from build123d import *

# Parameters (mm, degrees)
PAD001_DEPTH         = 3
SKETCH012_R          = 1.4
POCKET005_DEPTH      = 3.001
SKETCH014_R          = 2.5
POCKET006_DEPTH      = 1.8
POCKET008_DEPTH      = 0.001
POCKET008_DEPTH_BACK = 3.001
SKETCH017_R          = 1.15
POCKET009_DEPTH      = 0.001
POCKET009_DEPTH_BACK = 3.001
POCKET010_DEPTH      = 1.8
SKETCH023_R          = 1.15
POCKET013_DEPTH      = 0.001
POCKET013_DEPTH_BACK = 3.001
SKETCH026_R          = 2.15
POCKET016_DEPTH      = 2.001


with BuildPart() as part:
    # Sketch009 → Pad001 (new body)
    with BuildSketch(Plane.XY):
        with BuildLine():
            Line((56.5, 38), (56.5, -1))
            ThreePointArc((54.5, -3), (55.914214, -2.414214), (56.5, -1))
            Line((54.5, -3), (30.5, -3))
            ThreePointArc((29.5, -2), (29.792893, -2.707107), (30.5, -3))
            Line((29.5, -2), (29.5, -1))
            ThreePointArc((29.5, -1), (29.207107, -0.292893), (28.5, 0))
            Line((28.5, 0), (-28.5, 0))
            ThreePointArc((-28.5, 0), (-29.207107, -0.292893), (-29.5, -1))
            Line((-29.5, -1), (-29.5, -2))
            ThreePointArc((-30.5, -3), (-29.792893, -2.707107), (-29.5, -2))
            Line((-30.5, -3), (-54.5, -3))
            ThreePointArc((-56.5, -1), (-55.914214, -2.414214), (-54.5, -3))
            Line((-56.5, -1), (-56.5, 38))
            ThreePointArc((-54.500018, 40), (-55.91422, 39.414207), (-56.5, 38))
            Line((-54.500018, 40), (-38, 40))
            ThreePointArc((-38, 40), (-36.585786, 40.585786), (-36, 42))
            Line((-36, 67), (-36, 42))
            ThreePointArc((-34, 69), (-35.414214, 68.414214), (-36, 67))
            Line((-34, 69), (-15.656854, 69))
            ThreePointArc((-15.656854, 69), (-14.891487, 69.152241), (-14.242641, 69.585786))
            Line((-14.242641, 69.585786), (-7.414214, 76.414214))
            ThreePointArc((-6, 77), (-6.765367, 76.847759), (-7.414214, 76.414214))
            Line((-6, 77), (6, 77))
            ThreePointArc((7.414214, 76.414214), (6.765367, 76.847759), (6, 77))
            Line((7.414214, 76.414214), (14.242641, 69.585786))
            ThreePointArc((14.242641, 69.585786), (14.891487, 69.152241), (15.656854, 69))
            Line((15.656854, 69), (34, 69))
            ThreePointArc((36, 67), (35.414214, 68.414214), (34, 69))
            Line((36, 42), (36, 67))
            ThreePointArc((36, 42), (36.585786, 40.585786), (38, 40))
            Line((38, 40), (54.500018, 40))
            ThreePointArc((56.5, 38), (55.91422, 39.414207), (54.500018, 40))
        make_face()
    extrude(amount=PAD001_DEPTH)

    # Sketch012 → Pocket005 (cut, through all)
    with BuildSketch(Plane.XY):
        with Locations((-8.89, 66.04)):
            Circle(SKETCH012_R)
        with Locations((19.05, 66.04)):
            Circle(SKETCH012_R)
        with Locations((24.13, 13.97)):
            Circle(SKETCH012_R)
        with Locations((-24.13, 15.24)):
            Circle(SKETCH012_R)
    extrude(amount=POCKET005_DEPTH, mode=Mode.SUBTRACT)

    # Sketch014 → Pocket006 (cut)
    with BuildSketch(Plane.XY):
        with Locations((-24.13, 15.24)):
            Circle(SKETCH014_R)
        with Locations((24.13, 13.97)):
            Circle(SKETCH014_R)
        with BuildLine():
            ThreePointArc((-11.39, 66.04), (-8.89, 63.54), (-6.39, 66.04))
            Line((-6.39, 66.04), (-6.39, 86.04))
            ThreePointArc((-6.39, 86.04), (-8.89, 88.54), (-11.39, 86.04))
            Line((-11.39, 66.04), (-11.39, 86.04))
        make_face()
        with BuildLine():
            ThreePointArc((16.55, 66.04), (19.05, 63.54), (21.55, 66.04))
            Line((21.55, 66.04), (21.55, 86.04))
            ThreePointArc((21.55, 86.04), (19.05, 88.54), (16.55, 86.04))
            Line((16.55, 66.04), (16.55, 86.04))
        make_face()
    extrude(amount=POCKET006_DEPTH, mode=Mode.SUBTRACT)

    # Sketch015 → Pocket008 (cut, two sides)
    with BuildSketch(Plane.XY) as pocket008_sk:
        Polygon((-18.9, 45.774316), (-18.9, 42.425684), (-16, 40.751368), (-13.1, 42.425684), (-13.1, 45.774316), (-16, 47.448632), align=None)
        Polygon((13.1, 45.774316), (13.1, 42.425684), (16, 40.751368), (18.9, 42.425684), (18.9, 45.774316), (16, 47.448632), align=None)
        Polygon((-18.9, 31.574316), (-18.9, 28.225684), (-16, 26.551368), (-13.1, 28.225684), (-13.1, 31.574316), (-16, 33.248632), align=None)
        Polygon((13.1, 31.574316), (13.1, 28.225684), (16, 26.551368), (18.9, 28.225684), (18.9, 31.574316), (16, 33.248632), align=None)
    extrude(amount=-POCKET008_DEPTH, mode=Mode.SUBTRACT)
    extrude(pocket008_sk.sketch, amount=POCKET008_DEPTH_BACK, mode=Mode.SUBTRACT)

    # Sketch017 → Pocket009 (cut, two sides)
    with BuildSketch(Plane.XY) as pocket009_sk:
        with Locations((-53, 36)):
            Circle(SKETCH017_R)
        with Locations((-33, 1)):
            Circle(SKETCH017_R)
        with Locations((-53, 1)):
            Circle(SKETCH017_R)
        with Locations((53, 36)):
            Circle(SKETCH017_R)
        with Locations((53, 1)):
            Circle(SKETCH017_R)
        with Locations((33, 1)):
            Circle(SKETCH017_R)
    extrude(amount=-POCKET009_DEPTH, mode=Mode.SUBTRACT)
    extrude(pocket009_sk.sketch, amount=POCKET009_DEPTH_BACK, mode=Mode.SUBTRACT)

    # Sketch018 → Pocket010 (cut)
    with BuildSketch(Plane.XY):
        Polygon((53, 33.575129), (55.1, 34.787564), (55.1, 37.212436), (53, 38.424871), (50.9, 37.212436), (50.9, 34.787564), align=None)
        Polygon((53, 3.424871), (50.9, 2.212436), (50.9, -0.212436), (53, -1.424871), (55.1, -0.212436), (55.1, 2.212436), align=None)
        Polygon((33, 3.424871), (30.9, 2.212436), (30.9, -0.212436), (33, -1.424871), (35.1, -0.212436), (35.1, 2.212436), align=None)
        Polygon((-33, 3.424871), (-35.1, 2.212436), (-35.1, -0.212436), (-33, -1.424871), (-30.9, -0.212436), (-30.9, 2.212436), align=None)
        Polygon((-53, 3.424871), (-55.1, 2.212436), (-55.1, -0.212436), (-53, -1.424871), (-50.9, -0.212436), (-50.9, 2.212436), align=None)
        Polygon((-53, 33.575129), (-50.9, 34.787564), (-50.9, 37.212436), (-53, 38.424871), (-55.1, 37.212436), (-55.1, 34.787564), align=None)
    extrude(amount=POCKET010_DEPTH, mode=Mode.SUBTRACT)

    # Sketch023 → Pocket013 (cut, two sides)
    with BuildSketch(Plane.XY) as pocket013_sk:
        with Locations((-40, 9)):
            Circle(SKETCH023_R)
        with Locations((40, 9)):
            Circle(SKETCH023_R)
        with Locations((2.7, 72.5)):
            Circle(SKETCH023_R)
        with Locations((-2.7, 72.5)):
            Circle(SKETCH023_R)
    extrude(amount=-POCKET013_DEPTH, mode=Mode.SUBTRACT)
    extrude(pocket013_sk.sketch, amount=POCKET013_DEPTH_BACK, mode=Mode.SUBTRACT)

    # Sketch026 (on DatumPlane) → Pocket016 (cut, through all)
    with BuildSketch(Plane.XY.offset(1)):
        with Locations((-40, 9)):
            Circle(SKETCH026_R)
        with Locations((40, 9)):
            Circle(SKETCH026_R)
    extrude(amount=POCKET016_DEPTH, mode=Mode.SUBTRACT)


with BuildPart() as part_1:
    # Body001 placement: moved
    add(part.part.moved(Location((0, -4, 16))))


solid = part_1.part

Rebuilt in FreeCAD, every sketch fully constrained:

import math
import FreeCAD as App
import Part
import Sketcher

V = App.Vector
Q = App.Units.Quantity

doc = App.newDocument("Part")
body = doc.addObject("PartDesign::Body", "Body")

# Sketch on XY plane
sketch1 = body.newObject("Sketcher::SketchObject", "Sketch")
sketch1.AttachmentSupport = (doc.getObject("XY_Plane"), [""])
sketch1.MapMode = "FlatFace"
sketch1.addGeometry(Part.LineSegment(V(56.5, -1, 0), V(56.5, 38, 0)), False)
sketch1.addGeometry(Part.ArcOfCircle(Part.Circle(V(54.5, 38, 0), V(0, 0, 1), 2), math.radians(0), math.radians(90)), False)
sketch1.addGeometry(Part.LineSegment(V(54.5, 40, 0), V(38, 40, 0)), False)
sketch1.addGeometry(Part.ArcOfCircle(Part.Circle(V(38, 42, 0), V(0, 0, 1), 2), math.radians(180), math.radians(270)), False)
sketch1.addGeometry(Part.LineSegment(V(36, 42, 0), V(36, 67, 0)), False)
sketch1.addGeometry(Part.ArcOfCircle(Part.Circle(V(34, 67, 0), V(0, 0, 1), 2), math.radians(0), math.radians(90)), False)
sketch1.addGeometry(Part.LineSegment(V(34, 69, 0), V(15.7, 69, 0)), False)
sketch1.addGeometry(Part.ArcOfCircle(Part.Circle(V(15.7, 71, 0), V(0, 0, 1), 2), math.radians(-135), math.radians(-90)), False)
sketch1.addGeometry(Part.LineSegment(V(14.2, 69.6, 0), V(7.4, 76.4, 0)), False)
sketch1.addGeometry(Part.ArcOfCircle(Part.Circle(V(6, 75, 0), V(0, 0, 1), 2), math.radians(45), math.radians(90)), False)
sketch1.addGeometry(Part.LineSegment(V(6, 77, 0), V(-6, 77, 0)), False)
sketch1.addGeometry(Part.ArcOfCircle(Part.Circle(V(-6, 75, 0), V(0, 0, 1), 2), math.radians(90), math.radians(135)), False)
sketch1.addGeometry(Part.LineSegment(V(-7.4, 76.4, 0), V(-14.2, 69.6, 0)), False)
sketch1.addGeometry(Part.ArcOfCircle(Part.Circle(V(-15.7, 71, 0), V(0, 0, 1), 2), math.radians(-90), math.radians(-45)), False)
sketch1.addGeometry(Part.LineSegment(V(-15.7, 69, 0), V(-34, 69, 0)), False)
sketch1.addGeometry(Part.ArcOfCircle(Part.Circle(V(-34, 67, 0), V(0, 0, 1), 2), math.radians(90), math.radians(180)), False)
sketch1.addGeometry(Part.LineSegment(V(-36, 67, 0), V(-36, 42, 0)), False)
sketch1.addGeometry(Part.ArcOfCircle(Part.Circle(V(-38, 42, 0), V(0, 0, 1), 2), math.radians(-90), math.radians(0)), False)
sketch1.addGeometry(Part.LineSegment(V(-38, 40, 0), V(-54.5, 40, 0)), False)
sketch1.addGeometry(Part.ArcOfCircle(Part.Circle(V(-54.5, 38, 0), V(0, 0, 1), 2), math.radians(90), math.radians(180)), False)
sketch1.addGeometry(Part.LineSegment(V(-56.5, 38, 0), V(-56.5, -1, 0)), False)
sketch1.addGeometry(Part.ArcOfCircle(Part.Circle(V(-54.5, -1, 0), V(0, 0, 1), 2), math.radians(180), math.radians(270)), False)
sketch1.addGeometry(Part.LineSegment(V(-54.5, -3, 0), V(-30.5, -3, 0)), False)
sketch1.addGeometry(Part.ArcOfCircle(Part.Circle(V(-30.5, -2, 0), V(0, 0, 1), 1), math.radians(-90), math.radians(0)), False)
sketch1.addGeometry(Part.LineSegment(V(-29.5, -2, 0), V(-29.5, -1, 0)), False)
sketch1.addGeometry(Part.ArcOfCircle(Part.Circle(V(-28.5, -1, 0), V(0, 0, 1), 1), math.radians(90), math.radians(180)), False)
sketch1.addGeometry(Part.LineSegment(V(-28.5, 0, 0), V(28.5, 0, 0)), False)
sketch1.addGeometry(Part.ArcOfCircle(Part.Circle(V(28.5, -1, 0), V(0, 0, 1), 1), math.radians(0), math.radians(90)), False)
sketch1.addGeometry(Part.LineSegment(V(29.5, -1, 0), V(29.5, -2, 0)), False)
sketch1.addGeometry(Part.ArcOfCircle(Part.Circle(V(30.5, -2, 0), V(0, 0, 1), 1), math.radians(180), math.radians(270)), False)
sketch1.addGeometry(Part.LineSegment(V(30.5, -3, 0), V(54.5, -3, 0)), False)
sketch1.addGeometry(Part.ArcOfCircle(Part.Circle(V(54.5, -1, 0), V(0, 0, 1), 2), math.radians(-90), math.radians(0)), False)
sketch1.addConstraint(Sketcher.Constraint("Tangent", 0, 2, 1, 1))
sketch1.addConstraint(Sketcher.Constraint("Coincident", 1, 2, 2, 1))
sketch1.addConstraint(Sketcher.Constraint("Tangent", 2, 2, 3, 2))
sketch1.addConstraint(Sketcher.Constraint("Tangent", 3, 1, 4, 1))
sketch1.addConstraint(Sketcher.Constraint("Tangent", 4, 2, 5, 1))
sketch1.addConstraint(Sketcher.Constraint("Tangent", 5, 2, 6, 1))
sketch1.addConstraint(Sketcher.Constraint("Tangent", 6, 2, 7, 2))
sketch1.addConstraint(Sketcher.Constraint("Tangent", 7, 1, 8, 1))
sketch1.addConstraint(Sketcher.Constraint("Tangent", 8, 2, 9, 1))
sketch1.addConstraint(Sketcher.Constraint("Tangent", 9, 2, 10, 1))
sketch1.addConstraint(Sketcher.Constraint("Tangent", 10, 2, 11, 1))
sketch1.addConstraint(Sketcher.Constraint("Tangent", 11, 2, 12, 1))
sketch1.addConstraint(Sketcher.Constraint("Tangent", 12, 2, 13, 2))
sketch1.addConstraint(Sketcher.Constraint("Tangent", 13, 1, 14, 1))
sketch1.addConstraint(Sketcher.Constraint("Tangent", 14, 2, 15, 1))
sketch1.addConstraint(Sketcher.Constraint("Tangent", 15, 2, 16, 1))
sketch1.addConstraint(Sketcher.Constraint("Tangent", 16, 2, 17, 2))
sketch1.addConstraint(Sketcher.Constraint("Tangent", 17, 1, 18, 1))
sketch1.addConstraint(Sketcher.Constraint("Coincident", 18, 2, 19, 1))
sketch1.addConstraint(Sketcher.Constraint("Tangent", 19, 2, 20, 1))
sketch1.addConstraint(Sketcher.Constraint("Tangent", 20, 2, 21, 1))
sketch1.addConstraint(Sketcher.Constraint("Tangent", 21, 2, 22, 1))
sketch1.addConstraint(Sketcher.Constraint("Tangent", 22, 2, 23, 1))
sketch1.addConstraint(Sketcher.Constraint("Tangent", 23, 2, 24, 1))
sketch1.addConstraint(Sketcher.Constraint("Tangent", 24, 2, 25, 2))
sketch1.addConstraint(Sketcher.Constraint("Tangent", 25, 1, 26, 1))
sketch1.addConstraint(Sketcher.Constraint("Tangent", 26, 2, 27, 2))
sketch1.addConstraint(Sketcher.Constraint("Tangent", 27, 1, 28, 1))
sketch1.addConstraint(Sketcher.Constraint("Tangent", 28, 2, 29, 1))
sketch1.addConstraint(Sketcher.Constraint("Tangent", 29, 2, 30, 1))
sketch1.addConstraint(Sketcher.Constraint("Tangent", 30, 2, 31, 1))
sketch1.addConstraint(Sketcher.Constraint("Tangent", 31, 2, 0, 1))
sketch1.addConstraint(Sketcher.Constraint("Vertical", 0))
sketch1.addConstraint(Sketcher.Constraint("Horizontal", 2))
sketch1.addConstraint(Sketcher.Constraint("Vertical", 4))
sketch1.addConstraint(Sketcher.Constraint("Horizontal", 6))
sketch1.addConstraint(Sketcher.Constraint("Horizontal", 10))
sketch1.addConstraint(Sketcher.Constraint("Horizontal", 14))
sketch1.addConstraint(Sketcher.Constraint("Vertical", 16))
sketch1.addConstraint(Sketcher.Constraint("Horizontal", 18))
sketch1.addConstraint(Sketcher.Constraint("Vertical", 20))
sketch1.addConstraint(Sketcher.Constraint("Horizontal", 22))
sketch1.addConstraint(Sketcher.Constraint("Vertical", 24))
sketch1.addConstraint(Sketcher.Constraint("Horizontal", 26))
sketch1.addConstraint(Sketcher.Constraint("Vertical", 28))
sketch1.addConstraint(Sketcher.Constraint("Horizontal", 30))
sketch1.addConstraint(Sketcher.Constraint("Equal", 1, 3))
sketch1.addConstraint(Sketcher.Constraint("Equal", 3, 5))
sketch1.addConstraint(Sketcher.Constraint("Equal", 5, 7))
sketch1.addConstraint(Sketcher.Constraint("Equal", 9, 11))
sketch1.addConstraint(Sketcher.Constraint("Equal", 7, 13))
sketch1.addConstraint(Sketcher.Constraint("Equal", 13, 15))
sketch1.addConstraint(Sketcher.Constraint("Equal", 15, 17))
sketch1.addConstraint(Sketcher.Constraint("Equal", 17, 19))
sketch1.addConstraint(Sketcher.Constraint("Equal", 19, 21))
sketch1.addConstraint(Sketcher.Constraint("Equal", 23, 25))
sketch1.addConstraint(Sketcher.Constraint("Equal", 25, 27))
sketch1.addConstraint(Sketcher.Constraint("Equal", 27, 29))
sketch1.addConstraint(Sketcher.Constraint("Equal", 21, 31))
sketch1.addConstraint(Sketcher.Constraint("Symmetric", 25, 1, 26, 2, -1, 1))
sketch1.addConstraint(Sketcher.Constraint("Symmetric", 7, 3, 13, 3, -2))
sketch1.addConstraint(Sketcher.Constraint("Symmetric", 3, 3, 17, 3, -2))
sketch1.addConstraint(Sketcher.Constraint("Symmetric", 21, 3, 31, 3, -2))
sketch1.addConstraint(Sketcher.Constraint("Perpendicular", 8, 12))
sketch1.addConstraint(Sketcher.Constraint("Horizontal", 8, 2, 11, 2))
sketch1.addConstraint(Sketcher.Constraint("Horizontal", 20, 2, 24, 2))
sketch1.addConstraint(Sketcher.Constraint("Equal", 2, 18))
sketch1.addConstraint(Sketcher.Constraint("Radius", 1, 2.0))
sketch1.addConstraint(Sketcher.Constraint("Radius", 23, 0.999999))
sketch1.addConstraint(Sketcher.Constraint("DistanceX", 10, 2, 10, 1, 12.0))
sketch1.addConstraint(Sketcher.Constraint("DistanceX", 22, 1, 22, 2, 24.0))
sketch1.addConstraint(Sketcher.Constraint("DistanceX", 26, 1, 26, 2, 57.0))
sketch1.addConstraint(Sketcher.Constraint("DistanceY", 0, 1, 0, 2, 39.0))
sketch1.addConstraint(Sketcher.Constraint("DistanceY", 4, 1, 4, 2, 25.0))
sketch1.addConstraint(Sketcher.Constraint("DistanceX", -1, 1, 3, 3, 37.999999))
sketch1.addConstraint(Sketcher.Constraint("DistanceY", -1, 1, 9, 2, 77.0))
sketch1.addConstraint(Sketcher.Constraint("Radius", 9, 2.000004))
sketch1.addConstraint(Sketcher.Constraint("DistanceX", 2, 2, 2, 1, 16.500018))
pad1 = body.newObject("PartDesign::Pad", "Pad")
pad1.Profile = sketch1
pad1.Length = 3

# Sketch on XY plane
sketch2 = body.newObject("Sketcher::SketchObject", "Sketch001")
sketch2.AttachmentSupport = (doc.getObject("XY_Plane"), [""])
sketch2.MapMode = "FlatFace"
sketch2.addGeometry(Part.Circle(V(-8.9, 66, 0), V(0, 0, 1), 1.4), False)
sketch2.addGeometry(Part.Circle(V(19.1, 66, 0), V(0, 0, 1), 1.4), False)
sketch2.addGeometry(Part.Circle(V(24.1, 14, 0), V(0, 0, 1), 1.4), False)
sketch2.addGeometry(Part.Circle(V(-24.1, 15.2, 0), V(0, 0, 1), 1.4), False)
sketch2.addConstraint(Sketcher.Constraint("Equal", 0, 1))
sketch2.addConstraint(Sketcher.Constraint("Equal", 1, 2))
sketch2.addConstraint(Sketcher.Constraint("Equal", 2, 3))
sketch2.addConstraint(Sketcher.Constraint("Horizontal", 0, 3, 1, 3))
sketch2.addConstraint(Sketcher.Constraint("Diameter", 0, 2.8))
sketch2.addConstraint(Sketcher.Constraint("DistanceY", 3, 3, 0, 3, 50.8))
sketch2.addConstraint(Sketcher.Constraint("DistanceX", 0, 3, -1, 1, 8.89))
sketch2.addConstraint(Sketcher.Constraint("DistanceY", -1, 1, 0, 3, 66.04))
sketch2.addConstraint(Sketcher.Constraint("DistanceX", -1, 1, 1, 3, 19.05))
sketch2.addConstraint(Sketcher.Constraint("DistanceX", -1, 1, 2, 3, 24.13))
sketch2.addConstraint(Sketcher.Constraint("DistanceY", -1, 1, 2, 3, 13.97))
sketch2.addConstraint(Sketcher.Constraint("DistanceX", 3, 3, -1, 1, 24.13))
pocket1 = body.newObject("PartDesign::Pocket", "Pocket")
pocket1.Profile = sketch2
pocket1.Type = "ThroughAll"
pocket1.Reversed = True

# Sketch on XY plane
sketch3 = body.newObject("Sketcher::SketchObject", "Sketch002")
sketch3.AttachmentSupport = (doc.getObject("XY_Plane"), [""])
sketch3.MapMode = "FlatFace"
sketch3.addGeometry(Part.Circle(V(-24.1, 15.2, 0), V(0, 0, 1), 2.5), False)
sketch3.addGeometry(Part.Circle(V(24.1, 14, 0), V(0, 0, 1), 2.5), False)
sketch3.addGeometry(Part.ArcOfCircle(Part.Circle(V(-8.9, 66, 0), V(0, 0, 1), 2.5), math.radians(180), math.radians(360)), False)
sketch3.addGeometry(Part.LineSegment(V(-6.4, 66, 0), V(-6.4, 86, 0)), False)
sketch3.addGeometry(Part.ArcOfCircle(Part.Circle(V(-8.9, 86, 0), V(0, 0, 1), 2.5), math.radians(0), math.radians(180)), False)
sketch3.addGeometry(Part.LineSegment(V(-11.4, 86, 0), V(-11.4, 66, 0)), False)
sketch3.addGeometry(Part.ArcOfCircle(Part.Circle(V(19.1, 66, 0), V(0, 0, 1), 2.5), math.radians(180), math.radians(360)), False)
sketch3.addGeometry(Part.LineSegment(V(21.6, 66, 0), V(21.6, 86, 0)), False)
sketch3.addGeometry(Part.ArcOfCircle(Part.Circle(V(19.1, 86, 0), V(0, 0, 1), 2.5), math.radians(0), math.radians(180)), False)
sketch3.addGeometry(Part.LineSegment(V(16.6, 86, 0), V(16.6, 66, 0)), False)
sketch3.addConstraint(Sketcher.Constraint("Tangent", 2, 2, 3, 1))
sketch3.addConstraint(Sketcher.Constraint("Tangent", 3, 2, 4, 1))
sketch3.addConstraint(Sketcher.Constraint("Tangent", 4, 2, 5, 1))
sketch3.addConstraint(Sketcher.Constraint("Tangent", 5, 2, 2, 1))
sketch3.addConstraint(Sketcher.Constraint("Tangent", 6, 2, 7, 1))
sketch3.addConstraint(Sketcher.Constraint("Tangent", 7, 2, 8, 1))
sketch3.addConstraint(Sketcher.Constraint("Tangent", 8, 2, 9, 1))
sketch3.addConstraint(Sketcher.Constraint("Tangent", 9, 2, 6, 1))
sketch3.addConstraint(Sketcher.Constraint("Vertical", 3))
sketch3.addConstraint(Sketcher.Constraint("Vertical", 5))
sketch3.addConstraint(Sketcher.Constraint("Vertical", 7))
sketch3.addConstraint(Sketcher.Constraint("Vertical", 9))
sketch3.addConstraint(Sketcher.Constraint("Equal", 0, 1))
sketch3.addConstraint(Sketcher.Constraint("Equal", 1, 2))
sketch3.addConstraint(Sketcher.Constraint("Equal", 4, 6))
sketch3.addConstraint(Sketcher.Constraint("Horizontal", 2, 3, 6, 3))
sketch3.addConstraint(Sketcher.Constraint("Horizontal", 4, 3, 8, 3))
sketch3.addConstraint(Sketcher.Constraint("Diameter", 0, 5.0))
sketch3.addConstraint(Sketcher.Constraint("DistanceY", 3, 1, 3, 2, 20.0))
sketch3.addConstraint(Sketcher.Constraint("DistanceY", 0, 3, 2, 3, 50.8))
sketch3.addConstraint(Sketcher.Constraint("DistanceX", 0, 3, -1, 1, 24.13))
sketch3.addConstraint(Sketcher.Constraint("DistanceY", -1, 1, 0, 3, 15.24))
sketch3.addConstraint(Sketcher.Constraint("DistanceX", -1, 1, 1, 3, 24.13))
sketch3.addConstraint(Sketcher.Constraint("DistanceY", -1, 1, 1, 3, 13.97))
sketch3.addConstraint(Sketcher.Constraint("DistanceX", 2, 3, -1, 1, 8.89))
sketch3.addConstraint(Sketcher.Constraint("DistanceX", -1, 1, 6, 3, 19.05))
pocket2 = body.newObject("PartDesign::Pocket", "Pocket001")
pocket2.Profile = sketch3
pocket2.Length = 1.8
pocket2.Reversed = True

# Sketch on XY plane
sketch4 = body.newObject("Sketcher::SketchObject", "Sketch003")
sketch4.AttachmentSupport = (doc.getObject("XY_Plane"), [""])
sketch4.MapMode = "FlatFace"
sketch4.addGeometry(Part.LineSegment(V(-18.9, 45.8, 0), V(-18.9, 42.4, 0)), False)
sketch4.addGeometry(Part.LineSegment(V(-18.9, 42.4, 0), V(-16, 40.8, 0)), False)
sketch4.addGeometry(Part.LineSegment(V(-16, 40.8, 0), V(-13.1, 42.4, 0)), False)
sketch4.addGeometry(Part.LineSegment(V(-13.1, 42.4, 0), V(-13.1, 45.8, 0)), False)
sketch4.addGeometry(Part.LineSegment(V(-13.1, 45.8, 0), V(-16, 47.4, 0)), False)
sketch4.addGeometry(Part.LineSegment(V(-16, 47.4, 0), V(-18.9, 45.8, 0)), False)
sketch4.addGeometry(Part.LineSegment(V(13.1, 45.8, 0), V(13.1, 42.4, 0)), False)
sketch4.addGeometry(Part.LineSegment(V(13.1, 42.4, 0), V(16, 40.8, 0)), False)
sketch4.addGeometry(Part.LineSegment(V(16, 40.8, 0), V(18.9, 42.4, 0)), False)
sketch4.addGeometry(Part.LineSegment(V(18.9, 42.4, 0), V(18.9, 45.8, 0)), False)
sketch4.addGeometry(Part.LineSegment(V(18.9, 45.8, 0), V(16, 47.4, 0)), False)
sketch4.addGeometry(Part.LineSegment(V(16, 47.4, 0), V(13.1, 45.8, 0)), False)
sketch4.addGeometry(Part.LineSegment(V(-18.9, 31.6, 0), V(-18.9, 28.2, 0)), False)
sketch4.addGeometry(Part.LineSegment(V(-18.9, 28.2, 0), V(-16, 26.6, 0)), False)
sketch4.addGeometry(Part.LineSegment(V(-16, 26.6, 0), V(-13.1, 28.2, 0)), False)
sketch4.addGeometry(Part.LineSegment(V(-13.1, 28.2, 0), V(-13.1, 31.6, 0)), False)
sketch4.addGeometry(Part.LineSegment(V(-13.1, 31.6, 0), V(-16, 33.2, 0)), False)
sketch4.addGeometry(Part.LineSegment(V(-16, 33.2, 0), V(-18.9, 31.6, 0)), False)
sketch4.addGeometry(Part.LineSegment(V(13.1, 31.6, 0), V(13.1, 28.2, 0)), False)
sketch4.addGeometry(Part.LineSegment(V(13.1, 28.2, 0), V(16, 26.6, 0)), False)
sketch4.addGeometry(Part.LineSegment(V(16, 26.6, 0), V(18.9, 28.2, 0)), False)
sketch4.addGeometry(Part.LineSegment(V(18.9, 28.2, 0), V(18.9, 31.6, 0)), False)
sketch4.addGeometry(Part.LineSegment(V(18.9, 31.6, 0), V(16, 33.2, 0)), False)
sketch4.addGeometry(Part.LineSegment(V(16, 33.2, 0), V(13.1, 31.6, 0)), False)
sketch4.addConstraint(Sketcher.Constraint("Coincident", 0, 2, 1, 1))
sketch4.addConstraint(Sketcher.Constraint("Coincident", 1, 2, 2, 1))
sketch4.addConstraint(Sketcher.Constraint("Coincident", 2, 2, 3, 1))
sketch4.addConstraint(Sketcher.Constraint("Coincident", 3, 2, 4, 1))
sketch4.addConstraint(Sketcher.Constraint("Coincident", 4, 2, 5, 1))
sketch4.addConstraint(Sketcher.Constraint("Coincident", 5, 2, 0, 1))
sketch4.addConstraint(Sketcher.Constraint("Coincident", 6, 2, 7, 1))
sketch4.addConstraint(Sketcher.Constraint("Coincident", 7, 2, 8, 1))
sketch4.addConstraint(Sketcher.Constraint("Coincident", 8, 2, 9, 1))
sketch4.addConstraint(Sketcher.Constraint("Coincident", 9, 2, 10, 1))
sketch4.addConstraint(Sketcher.Constraint("Coincident", 10, 2, 11, 1))
sketch4.addConstraint(Sketcher.Constraint("Coincident", 11, 2, 6, 1))
sketch4.addConstraint(Sketcher.Constraint("Coincident", 12, 2, 13, 1))
sketch4.addConstraint(Sketcher.Constraint("Coincident", 13, 2, 14, 1))
sketch4.addConstraint(Sketcher.Constraint("Coincident", 14, 2, 15, 1))
sketch4.addConstraint(Sketcher.Constraint("Coincident", 15, 2, 16, 1))
sketch4.addConstraint(Sketcher.Constraint("Coincident", 16, 2, 17, 1))
sketch4.addConstraint(Sketcher.Constraint("Coincident", 17, 2, 12, 1))
sketch4.addConstraint(Sketcher.Constraint("Coincident", 18, 2, 19, 1))
sketch4.addConstraint(Sketcher.Constraint("Coincident", 19, 2, 20, 1))
sketch4.addConstraint(Sketcher.Constraint("Coincident", 20, 2, 21, 1))
sketch4.addConstraint(Sketcher.Constraint("Coincident", 21, 2, 22, 1))
sketch4.addConstraint(Sketcher.Constraint("Coincident", 22, 2, 23, 1))
sketch4.addConstraint(Sketcher.Constraint("Coincident", 23, 2, 18, 1))
sketch4.addConstraint(Sketcher.Constraint("Vertical", 0))
sketch4.addConstraint(Sketcher.Constraint("Vertical", 3))
sketch4.addConstraint(Sketcher.Constraint("Vertical", 6))
sketch4.addConstraint(Sketcher.Constraint("Vertical", 9))
sketch4.addConstraint(Sketcher.Constraint("Vertical", 12))
sketch4.addConstraint(Sketcher.Constraint("Vertical", 15))
sketch4.addConstraint(Sketcher.Constraint("Vertical", 18))
sketch4.addConstraint(Sketcher.Constraint("Vertical", 21))
sketch4.addConstraint(Sketcher.Constraint("Symmetric", 2, 2, 6, 2, -2))
sketch4.addConstraint(Sketcher.Constraint("Symmetric", 1, 2, 7, 2, -2))
sketch4.addConstraint(Sketcher.Constraint("Symmetric", 0, 2, 8, 2, -2))
sketch4.addConstraint(Sketcher.Constraint("Symmetric", 4, 2, 10, 2, -2))
sketch4.addConstraint(Sketcher.Constraint("Symmetric", 14, 2, 18, 2, -2))
sketch4.addConstraint(Sketcher.Constraint("Symmetric", 13, 2, 19, 2, -2))
sketch4.addConstraint(Sketcher.Constraint("Symmetric", 12, 2, 20, 2, -2))
sketch4.addConstraint(Sketcher.Constraint("Symmetric", 16, 2, 22, 2, -2))
sketch4.addConstraint(Sketcher.Constraint("Parallel", 1, 4))
sketch4.addConstraint(Sketcher.Constraint("Parallel", 2, 5))
sketch4.addConstraint(Sketcher.Constraint("Parallel", 4, 7))
sketch4.addConstraint(Sketcher.Constraint("Parallel", 7, 10))
sketch4.addConstraint(Sketcher.Constraint("Parallel", 8, 11))
sketch4.addConstraint(Sketcher.Constraint("Parallel", 10, 13))
sketch4.addConstraint(Sketcher.Constraint("Parallel", 11, 14))
sketch4.addConstraint(Sketcher.Constraint("Parallel", 13, 16))
sketch4.addConstraint(Sketcher.Constraint("Parallel", 14, 17))
sketch4.addConstraint(Sketcher.Constraint("Parallel", 19, 22))
sketch4.addConstraint(Sketcher.Constraint("Parallel", 20, 23))
sketch4.addConstraint(Sketcher.Constraint("Horizontal", 0, 2, 2, 2))
sketch4.addConstraint(Sketcher.Constraint("Horizontal", 3, 2, 5, 2))
sketch4.addConstraint(Sketcher.Constraint("Horizontal", 12, 2, 14, 2))
sketch4.addConstraint(Sketcher.Constraint("Horizontal", 15, 2, 17, 2))
sketch4.addConstraint(Sketcher.Constraint("Vertical", 5, 2, 12, 2))
sketch4.addConstraint(Sketcher.Constraint("Vertical", 4, 2, 13, 2))
sketch4.addConstraint(Sketcher.Constraint("Equal", 9, 12))
sketch4.addConstraint(Sketcher.Constraint("Angle", 1, Q("-30.000003 deg")))
sketch4.addConstraint(Sketcher.Constraint("DistanceX", 1, 2, -1, 1, 16.0))
sketch4.addConstraint(Sketcher.Constraint("DistanceX", 0, 2, -1, 1, 18.9))
sketch4.addConstraint(Sketcher.Constraint("DistanceY", 12, 2, 0, 2, 14.2))
sketch4.addConstraint(Sketcher.Constraint("DistanceY", 12, 2, 12, 1, 3.348632))
sketch4.addConstraint(Sketcher.Constraint("DistanceY", -1, 1, 13, 2, 26.551368))
pocket3 = body.newObject("PartDesign::Pocket", "Pocket002")
pocket3.Profile = sketch4
pocket3.Type = "ThroughAll"
pocket3.Midplane = True

# Sketch on XY plane
sketch5 = body.newObject("Sketcher::SketchObject", "Sketch004")
sketch5.AttachmentSupport = (doc.getObject("XY_Plane"), [""])
sketch5.MapMode = "FlatFace"
sketch5.addGeometry(Part.Circle(V(-53, 36, 0), V(0, 0, 1), 1.1), False)
sketch5.addGeometry(Part.Circle(V(-33, 1, 0), V(0, 0, 1), 1.1), False)
sketch5.addGeometry(Part.Circle(V(-53, 1, 0), V(0, 0, 1), 1.1), False)
sketch5.addGeometry(Part.Circle(V(53, 36, 0), V(0, 0, 1), 1.1), False)
sketch5.addGeometry(Part.Circle(V(53, 1, 0), V(0, 0, 1), 1.1), False)
sketch5.addGeometry(Part.Circle(V(33, 1, 0), V(0, 0, 1), 1.1), False)
sketch5.addConstraint(Sketcher.Constraint("Equal", 0, 1))
sketch5.addConstraint(Sketcher.Constraint("Equal", 1, 2))
sketch5.addConstraint(Sketcher.Constraint("Equal", 2, 3))
sketch5.addConstraint(Sketcher.Constraint("Equal", 3, 4))
sketch5.addConstraint(Sketcher.Constraint("Equal", 4, 5))
sketch5.addConstraint(Sketcher.Constraint("Symmetric", 0, 3, 3, 3, -2))
sketch5.addConstraint(Sketcher.Constraint("Symmetric", 2, 3, 4, 3, -2))
sketch5.addConstraint(Sketcher.Constraint("Symmetric", 1, 3, 5, 3, -2))
sketch5.addConstraint(Sketcher.Constraint("Horizontal", 1, 3, 2, 3))
sketch5.addConstraint(Sketcher.Constraint("Vertical", 0, 3, 2, 3))
sketch5.addConstraint(Sketcher.Constraint("Diameter", 0, 2.3))
sketch5.addConstraint(Sketcher.Constraint("DistanceX", 0, 3, -1, 1, 53.0))
sketch5.addConstraint(Sketcher.Constraint("DistanceY", -1, 1, 0, 3, 36.0))
sketch5.addConstraint(Sketcher.Constraint("DistanceX", 1, 3, -1, 1, 33.0))
sketch5.addConstraint(Sketcher.Constraint("DistanceY", -1, 1, 1, 3, 1.0))
pocket4 = body.newObject("PartDesign::Pocket", "Pocket003")
pocket4.Profile = sketch5
pocket4.Type = "ThroughAll"
pocket4.Midplane = True

# Sketch on XY plane
sketch6 = body.newObject("Sketcher::SketchObject", "Sketch005")
sketch6.AttachmentSupport = (doc.getObject("XY_Plane"), [""])
sketch6.MapMode = "FlatFace"
sketch6.addGeometry(Part.LineSegment(V(53, 33.6, 0), V(55.1, 34.8, 0)), False)
sketch6.addGeometry(Part.LineSegment(V(55.1, 34.8, 0), V(55.1, 37.2, 0)), False)
sketch6.addGeometry(Part.LineSegment(V(55.1, 37.2, 0), V(53, 38.4, 0)), False)
sketch6.addGeometry(Part.LineSegment(V(53, 38.4, 0), V(50.9, 37.2, 0)), False)
sketch6.addGeometry(Part.LineSegment(V(50.9, 37.2, 0), V(50.9, 34.8, 0)), False)
sketch6.addGeometry(Part.LineSegment(V(50.9, 34.8, 0), V(53, 33.6, 0)), False)
sketch6.addGeometry(Part.LineSegment(V(53, 3.4, 0), V(50.9, 2.2, 0)), False)
sketch6.addGeometry(Part.LineSegment(V(50.9, 2.2, 0), V(50.9, -0.2, 0)), False)
sketch6.addGeometry(Part.LineSegment(V(50.9, -0.2, 0), V(53, -1.4, 0)), False)
sketch6.addGeometry(Part.LineSegment(V(53, -1.4, 0), V(55.1, -0.2, 0)), False)
sketch6.addGeometry(Part.LineSegment(V(55.1, -0.2, 0), V(55.1, 2.2, 0)), False)
sketch6.addGeometry(Part.LineSegment(V(55.1, 2.2, 0), V(53, 3.4, 0)), False)
sketch6.addGeometry(Part.LineSegment(V(33, 3.4, 0), V(30.9, 2.2, 0)), False)
sketch6.addGeometry(Part.LineSegment(V(30.9, 2.2, 0), V(30.9, -0.2, 0)), False)
sketch6.addGeometry(Part.LineSegment(V(30.9, -0.2, 0), V(33, -1.4, 0)), False)
sketch6.addGeometry(Part.LineSegment(V(33, -1.4, 0), V(35.1, -0.2, 0)), False)
sketch6.addGeometry(Part.LineSegment(V(35.1, -0.2, 0), V(35.1, 2.2, 0)), False)
sketch6.addGeometry(Part.LineSegment(V(35.1, 2.2, 0), V(33, 3.4, 0)), False)
sketch6.addGeometry(Part.LineSegment(V(-33, 3.4, 0), V(-35.1, 2.2, 0)), False)
sketch6.addGeometry(Part.LineSegment(V(-35.1, 2.2, 0), V(-35.1, -0.2, 0)), False)
sketch6.addGeometry(Part.LineSegment(V(-35.1, -0.2, 0), V(-33, -1.4, 0)), False)
sketch6.addGeometry(Part.LineSegment(V(-33, -1.4, 0), V(-30.9, -0.2, 0)), False)
sketch6.addGeometry(Part.LineSegment(V(-30.9, -0.2, 0), V(-30.9, 2.2, 0)), False)
sketch6.addGeometry(Part.LineSegment(V(-30.9, 2.2, 0), V(-33, 3.4, 0)), False)
sketch6.addGeometry(Part.LineSegment(V(-53, 3.4, 0), V(-55.1, 2.2, 0)), False)
sketch6.addGeometry(Part.LineSegment(V(-55.1, 2.2, 0), V(-55.1, -0.2, 0)), False)
sketch6.addGeometry(Part.LineSegment(V(-55.1, -0.2, 0), V(-53, -1.4, 0)), False)
sketch6.addGeometry(Part.LineSegment(V(-53, -1.4, 0), V(-50.9, -0.2, 0)), False)
sketch6.addGeometry(Part.LineSegment(V(-50.9, -0.2, 0), V(-50.9, 2.2, 0)), False)
sketch6.addGeometry(Part.LineSegment(V(-50.9, 2.2, 0), V(-53, 3.4, 0)), False)
sketch6.addGeometry(Part.LineSegment(V(-53, 33.6, 0), V(-50.9, 34.8, 0)), False)
sketch6.addGeometry(Part.LineSegment(V(-50.9, 34.8, 0), V(-50.9, 37.2, 0)), False)
sketch6.addGeometry(Part.LineSegment(V(-50.9, 37.2, 0), V(-53, 38.4, 0)), False)
sketch6.addGeometry(Part.LineSegment(V(-53, 38.4, 0), V(-55.1, 37.2, 0)), False)
sketch6.addGeometry(Part.LineSegment(V(-55.1, 37.2, 0), V(-55.1, 34.8, 0)), False)
sketch6.addGeometry(Part.LineSegment(V(-55.1, 34.8, 0), V(-53, 33.6, 0)), False)
sketch6.addConstraint(Sketcher.Constraint("Coincident", 0, 2, 1, 1))
sketch6.addConstraint(Sketcher.Constraint("Coincident", 1, 2, 2, 1))
sketch6.addConstraint(Sketcher.Constraint("Coincident", 2, 2, 3, 1))
sketch6.addConstraint(Sketcher.Constraint("Coincident", 3, 2, 4, 1))
sketch6.addConstraint(Sketcher.Constraint("Coincident", 4, 2, 5, 1))
sketch6.addConstraint(Sketcher.Constraint("Coincident", 5, 2, 0, 1))
sketch6.addConstraint(Sketcher.Constraint("Coincident", 6, 2, 7, 1))
sketch6.addConstraint(Sketcher.Constraint("Coincident", 7, 2, 8, 1))
sketch6.addConstraint(Sketcher.Constraint("Coincident", 8, 2, 9, 1))
sketch6.addConstraint(Sketcher.Constraint("Coincident", 9, 2, 10, 1))
sketch6.addConstraint(Sketcher.Constraint("Coincident", 10, 2, 11, 1))
sketch6.addConstraint(Sketcher.Constraint("Coincident", 11, 2, 6, 1))
sketch6.addConstraint(Sketcher.Constraint("Coincident", 12, 2, 13, 1))
sketch6.addConstraint(Sketcher.Constraint("Coincident", 13, 2, 14, 1))
sketch6.addConstraint(Sketcher.Constraint("Coincident", 14, 2, 15, 1))
sketch6.addConstraint(Sketcher.Constraint("Coincident", 15, 2, 16, 1))
sketch6.addConstraint(Sketcher.Constraint("Coincident", 16, 2, 17, 1))
sketch6.addConstraint(Sketcher.Constraint("Coincident", 17, 2, 12, 1))
sketch6.addConstraint(Sketcher.Constraint("Coincident", 18, 2, 19, 1))
sketch6.addConstraint(Sketcher.Constraint("Coincident", 19, 2, 20, 1))
sketch6.addConstraint(Sketcher.Constraint("Coincident", 20, 2, 21, 1))
sketch6.addConstraint(Sketcher.Constraint("Coincident", 21, 2, 22, 1))
sketch6.addConstraint(Sketcher.Constraint("Coincident", 22, 2, 23, 1))
sketch6.addConstraint(Sketcher.Constraint("Coincident", 23, 2, 18, 1))
sketch6.addConstraint(Sketcher.Constraint("Coincident", 24, 2, 25, 1))
sketch6.addConstraint(Sketcher.Constraint("Coincident", 25, 2, 26, 1))
sketch6.addConstraint(Sketcher.Constraint("Coincident", 26, 2, 27, 1))
sketch6.addConstraint(Sketcher.Constraint("Coincident", 27, 2, 28, 1))
sketch6.addConstraint(Sketcher.Constraint("Coincident", 28, 2, 29, 1))
sketch6.addConstraint(Sketcher.Constraint("Coincident", 29, 2, 24, 1))
sketch6.addConstraint(Sketcher.Constraint("Coincident", 30, 2, 31, 1))
sketch6.addConstraint(Sketcher.Constraint("Coincident", 31, 2, 32, 1))
sketch6.addConstraint(Sketcher.Constraint("Coincident", 32, 2, 33, 1))
sketch6.addConstraint(Sketcher.Constraint("Coincident", 33, 2, 34, 1))
sketch6.addConstraint(Sketcher.Constraint("Coincident", 34, 2, 35, 1))
sketch6.addConstraint(Sketcher.Constraint("Coincident", 35, 2, 30, 1))
sketch6.addConstraint(Sketcher.Constraint("Vertical", 1))
sketch6.addConstraint(Sketcher.Constraint("Vertical", 4))
sketch6.addConstraint(Sketcher.Constraint("Vertical", 7))
sketch6.addConstraint(Sketcher.Constraint("Vertical", 10))
sketch6.addConstraint(Sketcher.Constraint("Vertical", 13))
sketch6.addConstraint(Sketcher.Constraint("Vertical", 16))
sketch6.addConstraint(Sketcher.Constraint("Vertical", 19))
sketch6.addConstraint(Sketcher.Constraint("Vertical", 22))
sketch6.addConstraint(Sketcher.Constraint("Vertical", 25))
sketch6.addConstraint(Sketcher.Constraint("Vertical", 28))
sketch6.addConstraint(Sketcher.Constraint("Vertical", 31))
sketch6.addConstraint(Sketcher.Constraint("Vertical", 34))
sketch6.addConstraint(Sketcher.Constraint("Symmetric", 16, 2, 18, 2, -2))
sketch6.addConstraint(Sketcher.Constraint("Symmetric", 14, 2, 20, 2, -2))
sketch6.addConstraint(Sketcher.Constraint("Symmetric", 13, 2, 21, 2, -2))
sketch6.addConstraint(Sketcher.Constraint("Symmetric", 17, 2, 23, 2, -2))
sketch6.addConstraint(Sketcher.Constraint("Symmetric", 10, 2, 24, 2, -2))
sketch6.addConstraint(Sketcher.Constraint("Symmetric", 8, 2, 26, 2, -2))
sketch6.addConstraint(Sketcher.Constraint("Symmetric", 7, 2, 27, 2, -2))
sketch6.addConstraint(Sketcher.Constraint("Symmetric", 11, 2, 29, 2, -2))
sketch6.addConstraint(Sketcher.Constraint("Symmetric", 4, 2, 30, 2, -2))
sketch6.addConstraint(Sketcher.Constraint("Symmetric", 2, 2, 32, 2, -2))
sketch6.addConstraint(Sketcher.Constraint("Symmetric", 1, 2, 33, 2, -2))
sketch6.addConstraint(Sketcher.Constraint("Symmetric", 5, 2, 35, 2, -2))
sketch6.addConstraint(Sketcher.Constraint("Parallel", 0, 3))
sketch6.addConstraint(Sketcher.Constraint("Parallel", 2, 5))
sketch6.addConstraint(Sketcher.Constraint("Parallel", 3, 6))
sketch6.addConstraint(Sketcher.Constraint("Parallel", 5, 8))
sketch6.addConstraint(Sketcher.Constraint("Parallel", 6, 9))
sketch6.addConstraint(Sketcher.Constraint("Parallel", 8, 11))
sketch6.addConstraint(Sketcher.Constraint("Parallel", 9, 12))
sketch6.addConstraint(Sketcher.Constraint("Parallel", 11, 14))
sketch6.addConstraint(Sketcher.Constraint("Parallel", 12, 15))
sketch6.addConstraint(Sketcher.Constraint("Parallel", 14, 17))
sketch6.addConstraint(Sketcher.Constraint("Parallel", 15, 18))
sketch6.addConstraint(Sketcher.Constraint("Parallel", 17, 20))
sketch6.addConstraint(Sketcher.Constraint("Parallel", 20, 23))
sketch6.addConstraint(Sketcher.Constraint("Parallel", 23, 26))
sketch6.addConstraint(Sketcher.Constraint("Parallel", 26, 29))
sketch6.addConstraint(Sketcher.Constraint("Parallel", 29, 32))
sketch6.addConstraint(Sketcher.Constraint("Parallel", 32, 35))
sketch6.addConstraint(Sketcher.Constraint("Horizontal", 1, 2, 3, 2))
sketch6.addConstraint(Sketcher.Constraint("Horizontal", 0, 2, 4, 2))
sketch6.addConstraint(Sketcher.Constraint("Horizontal", 7, 2, 9, 2))
sketch6.addConstraint(Sketcher.Constraint("Horizontal", 6, 2, 10, 2))
sketch6.addConstraint(Sketcher.Constraint("Horizontal", 10, 2, 12, 2))
sketch6.addConstraint(Sketcher.Constraint("Horizontal", 9, 2, 13, 2))
sketch6.addConstraint(Sketcher.Constraint("Horizontal", 8, 2, 14, 2))
sketch6.addConstraint(Sketcher.Constraint("Horizontal", 13, 2, 15, 2))
sketch6.addConstraint(Sketcher.Constraint("Horizontal", 12, 2, 16, 2))
sketch6.addConstraint(Sketcher.Constraint("Vertical", 4, 2, 6, 2))
sketch6.addConstraint(Sketcher.Constraint("Vertical", 5, 2, 8, 2))
sketch6.addConstraint(Sketcher.Constraint("Equal", 4, 7))
sketch6.addConstraint(Sketcher.Constraint("Angle", 0, Q("29.999988 deg")))
sketch6.addConstraint(Sketcher.Constraint("DistanceX", -1, 1, 2, 2, 53.0))
sketch6.addConstraint(Sketcher.Constraint("DistanceX", -1, 1, 14, 2, 33.0))
sketch6.addConstraint(Sketcher.Constraint("DistanceY", 6, 2, 3, 2, 35.0))
sketch6.addConstraint(Sketcher.Constraint("DistanceX", -1, 1, 0, 2, 55.1))
sketch6.addConstraint(Sketcher.Constraint("DistanceY", 1, 1, 1, 2, 2.424872))
sketch6.addConstraint(Sketcher.Constraint("DistanceY", -1, 1, 2, 2, 38.424871))
pocket5 = body.newObject("PartDesign::Pocket", "Pocket004")
pocket5.Profile = sketch6
pocket5.Length = 1.8
pocket5.Reversed = True

# Sketch on XY plane
sketch7 = body.newObject("Sketcher::SketchObject", "Sketch006")
sketch7.AttachmentSupport = (doc.getObject("XY_Plane"), [""])
sketch7.MapMode = "FlatFace"
sketch7.addGeometry(Part.Circle(V(-40, 9, 0), V(0, 0, 1), 1.1), False)
sketch7.addGeometry(Part.Circle(V(40, 9, 0), V(0, 0, 1), 1.1), False)
sketch7.addGeometry(Part.Circle(V(2.7, 72.5, 0), V(0, 0, 1), 1.1), False)
sketch7.addGeometry(Part.Circle(V(-2.7, 72.5, 0), V(0, 0, 1), 1.1), False)
sketch7.addConstraint(Sketcher.Constraint("Equal", 0, 1))
sketch7.addConstraint(Sketcher.Constraint("Equal", 1, 2))
sketch7.addConstraint(Sketcher.Constraint("Equal", 2, 3))
sketch7.addConstraint(Sketcher.Constraint("Symmetric", 0, 3, 1, 3, -2))
sketch7.addConstraint(Sketcher.Constraint("Symmetric", 2, 3, 3, 3, -2))
sketch7.addConstraint(Sketcher.Constraint("Diameter", 0, 2.3))
sketch7.addConstraint(Sketcher.Constraint("DistanceX", 0, 3, -1, 1, 40.0))
sketch7.addConstraint(Sketcher.Constraint("DistanceY", -1, 1, 0, 3, 9.0))
sketch7.addConstraint(Sketcher.Constraint("DistanceX", -1, 1, 2, 3, 2.7))
sketch7.addConstraint(Sketcher.Constraint("DistanceY", -1, 1, 2, 3, 72.5))
pocket6 = body.newObject("PartDesign::Pocket", "Pocket005")
pocket6.Profile = sketch7
pocket6.Type = "ThroughAll"
pocket6.Midplane = True

# Sketch on XY plane
sketch8 = body.newObject("Sketcher::SketchObject", "Sketch007")
sketch8.AttachmentSupport = (doc.getObject("XY_Plane"), [""])
sketch8.MapMode = "FlatFace"
sketch8.AttachmentOffset = App.Placement(V(0, 0, 1), App.Rotation())
sketch8.addGeometry(Part.Circle(V(-40, 9, 0), V(0, 0, 1), 2.1), False)
sketch8.addGeometry(Part.Circle(V(40, 9, 0), V(0, 0, 1), 2.1), False)
sketch8.addConstraint(Sketcher.Constraint("Equal", 0, 1))
sketch8.addConstraint(Sketcher.Constraint("Symmetric", 0, 3, 1, 3, -2))
sketch8.addConstraint(Sketcher.Constraint("Diameter", 0, 4.3))
sketch8.addConstraint(Sketcher.Constraint("DistanceX", 0, 3, -1, 1, 40.0))
sketch8.addConstraint(Sketcher.Constraint("DistanceY", -1, 1, 0, 3, 9.0))
pocket7 = body.newObject("PartDesign::Pocket", "Pocket006")
pocket7.Profile = sketch8
pocket7.Type = "ThroughAll"
pocket7.Reversed = True
body2 = doc.addObject("PartDesign::Body", "Body001")
doc.recompute()

body.Placement = App.Placement(V(0, -4, 16), App.Rotation(V(0, 0, 1), 0))
boolean = body2.newObject("PartDesign::Boolean", "Boolean")
boolean.Type = "Fuse"
boolean.addObjects([body])

doc.recompute()
